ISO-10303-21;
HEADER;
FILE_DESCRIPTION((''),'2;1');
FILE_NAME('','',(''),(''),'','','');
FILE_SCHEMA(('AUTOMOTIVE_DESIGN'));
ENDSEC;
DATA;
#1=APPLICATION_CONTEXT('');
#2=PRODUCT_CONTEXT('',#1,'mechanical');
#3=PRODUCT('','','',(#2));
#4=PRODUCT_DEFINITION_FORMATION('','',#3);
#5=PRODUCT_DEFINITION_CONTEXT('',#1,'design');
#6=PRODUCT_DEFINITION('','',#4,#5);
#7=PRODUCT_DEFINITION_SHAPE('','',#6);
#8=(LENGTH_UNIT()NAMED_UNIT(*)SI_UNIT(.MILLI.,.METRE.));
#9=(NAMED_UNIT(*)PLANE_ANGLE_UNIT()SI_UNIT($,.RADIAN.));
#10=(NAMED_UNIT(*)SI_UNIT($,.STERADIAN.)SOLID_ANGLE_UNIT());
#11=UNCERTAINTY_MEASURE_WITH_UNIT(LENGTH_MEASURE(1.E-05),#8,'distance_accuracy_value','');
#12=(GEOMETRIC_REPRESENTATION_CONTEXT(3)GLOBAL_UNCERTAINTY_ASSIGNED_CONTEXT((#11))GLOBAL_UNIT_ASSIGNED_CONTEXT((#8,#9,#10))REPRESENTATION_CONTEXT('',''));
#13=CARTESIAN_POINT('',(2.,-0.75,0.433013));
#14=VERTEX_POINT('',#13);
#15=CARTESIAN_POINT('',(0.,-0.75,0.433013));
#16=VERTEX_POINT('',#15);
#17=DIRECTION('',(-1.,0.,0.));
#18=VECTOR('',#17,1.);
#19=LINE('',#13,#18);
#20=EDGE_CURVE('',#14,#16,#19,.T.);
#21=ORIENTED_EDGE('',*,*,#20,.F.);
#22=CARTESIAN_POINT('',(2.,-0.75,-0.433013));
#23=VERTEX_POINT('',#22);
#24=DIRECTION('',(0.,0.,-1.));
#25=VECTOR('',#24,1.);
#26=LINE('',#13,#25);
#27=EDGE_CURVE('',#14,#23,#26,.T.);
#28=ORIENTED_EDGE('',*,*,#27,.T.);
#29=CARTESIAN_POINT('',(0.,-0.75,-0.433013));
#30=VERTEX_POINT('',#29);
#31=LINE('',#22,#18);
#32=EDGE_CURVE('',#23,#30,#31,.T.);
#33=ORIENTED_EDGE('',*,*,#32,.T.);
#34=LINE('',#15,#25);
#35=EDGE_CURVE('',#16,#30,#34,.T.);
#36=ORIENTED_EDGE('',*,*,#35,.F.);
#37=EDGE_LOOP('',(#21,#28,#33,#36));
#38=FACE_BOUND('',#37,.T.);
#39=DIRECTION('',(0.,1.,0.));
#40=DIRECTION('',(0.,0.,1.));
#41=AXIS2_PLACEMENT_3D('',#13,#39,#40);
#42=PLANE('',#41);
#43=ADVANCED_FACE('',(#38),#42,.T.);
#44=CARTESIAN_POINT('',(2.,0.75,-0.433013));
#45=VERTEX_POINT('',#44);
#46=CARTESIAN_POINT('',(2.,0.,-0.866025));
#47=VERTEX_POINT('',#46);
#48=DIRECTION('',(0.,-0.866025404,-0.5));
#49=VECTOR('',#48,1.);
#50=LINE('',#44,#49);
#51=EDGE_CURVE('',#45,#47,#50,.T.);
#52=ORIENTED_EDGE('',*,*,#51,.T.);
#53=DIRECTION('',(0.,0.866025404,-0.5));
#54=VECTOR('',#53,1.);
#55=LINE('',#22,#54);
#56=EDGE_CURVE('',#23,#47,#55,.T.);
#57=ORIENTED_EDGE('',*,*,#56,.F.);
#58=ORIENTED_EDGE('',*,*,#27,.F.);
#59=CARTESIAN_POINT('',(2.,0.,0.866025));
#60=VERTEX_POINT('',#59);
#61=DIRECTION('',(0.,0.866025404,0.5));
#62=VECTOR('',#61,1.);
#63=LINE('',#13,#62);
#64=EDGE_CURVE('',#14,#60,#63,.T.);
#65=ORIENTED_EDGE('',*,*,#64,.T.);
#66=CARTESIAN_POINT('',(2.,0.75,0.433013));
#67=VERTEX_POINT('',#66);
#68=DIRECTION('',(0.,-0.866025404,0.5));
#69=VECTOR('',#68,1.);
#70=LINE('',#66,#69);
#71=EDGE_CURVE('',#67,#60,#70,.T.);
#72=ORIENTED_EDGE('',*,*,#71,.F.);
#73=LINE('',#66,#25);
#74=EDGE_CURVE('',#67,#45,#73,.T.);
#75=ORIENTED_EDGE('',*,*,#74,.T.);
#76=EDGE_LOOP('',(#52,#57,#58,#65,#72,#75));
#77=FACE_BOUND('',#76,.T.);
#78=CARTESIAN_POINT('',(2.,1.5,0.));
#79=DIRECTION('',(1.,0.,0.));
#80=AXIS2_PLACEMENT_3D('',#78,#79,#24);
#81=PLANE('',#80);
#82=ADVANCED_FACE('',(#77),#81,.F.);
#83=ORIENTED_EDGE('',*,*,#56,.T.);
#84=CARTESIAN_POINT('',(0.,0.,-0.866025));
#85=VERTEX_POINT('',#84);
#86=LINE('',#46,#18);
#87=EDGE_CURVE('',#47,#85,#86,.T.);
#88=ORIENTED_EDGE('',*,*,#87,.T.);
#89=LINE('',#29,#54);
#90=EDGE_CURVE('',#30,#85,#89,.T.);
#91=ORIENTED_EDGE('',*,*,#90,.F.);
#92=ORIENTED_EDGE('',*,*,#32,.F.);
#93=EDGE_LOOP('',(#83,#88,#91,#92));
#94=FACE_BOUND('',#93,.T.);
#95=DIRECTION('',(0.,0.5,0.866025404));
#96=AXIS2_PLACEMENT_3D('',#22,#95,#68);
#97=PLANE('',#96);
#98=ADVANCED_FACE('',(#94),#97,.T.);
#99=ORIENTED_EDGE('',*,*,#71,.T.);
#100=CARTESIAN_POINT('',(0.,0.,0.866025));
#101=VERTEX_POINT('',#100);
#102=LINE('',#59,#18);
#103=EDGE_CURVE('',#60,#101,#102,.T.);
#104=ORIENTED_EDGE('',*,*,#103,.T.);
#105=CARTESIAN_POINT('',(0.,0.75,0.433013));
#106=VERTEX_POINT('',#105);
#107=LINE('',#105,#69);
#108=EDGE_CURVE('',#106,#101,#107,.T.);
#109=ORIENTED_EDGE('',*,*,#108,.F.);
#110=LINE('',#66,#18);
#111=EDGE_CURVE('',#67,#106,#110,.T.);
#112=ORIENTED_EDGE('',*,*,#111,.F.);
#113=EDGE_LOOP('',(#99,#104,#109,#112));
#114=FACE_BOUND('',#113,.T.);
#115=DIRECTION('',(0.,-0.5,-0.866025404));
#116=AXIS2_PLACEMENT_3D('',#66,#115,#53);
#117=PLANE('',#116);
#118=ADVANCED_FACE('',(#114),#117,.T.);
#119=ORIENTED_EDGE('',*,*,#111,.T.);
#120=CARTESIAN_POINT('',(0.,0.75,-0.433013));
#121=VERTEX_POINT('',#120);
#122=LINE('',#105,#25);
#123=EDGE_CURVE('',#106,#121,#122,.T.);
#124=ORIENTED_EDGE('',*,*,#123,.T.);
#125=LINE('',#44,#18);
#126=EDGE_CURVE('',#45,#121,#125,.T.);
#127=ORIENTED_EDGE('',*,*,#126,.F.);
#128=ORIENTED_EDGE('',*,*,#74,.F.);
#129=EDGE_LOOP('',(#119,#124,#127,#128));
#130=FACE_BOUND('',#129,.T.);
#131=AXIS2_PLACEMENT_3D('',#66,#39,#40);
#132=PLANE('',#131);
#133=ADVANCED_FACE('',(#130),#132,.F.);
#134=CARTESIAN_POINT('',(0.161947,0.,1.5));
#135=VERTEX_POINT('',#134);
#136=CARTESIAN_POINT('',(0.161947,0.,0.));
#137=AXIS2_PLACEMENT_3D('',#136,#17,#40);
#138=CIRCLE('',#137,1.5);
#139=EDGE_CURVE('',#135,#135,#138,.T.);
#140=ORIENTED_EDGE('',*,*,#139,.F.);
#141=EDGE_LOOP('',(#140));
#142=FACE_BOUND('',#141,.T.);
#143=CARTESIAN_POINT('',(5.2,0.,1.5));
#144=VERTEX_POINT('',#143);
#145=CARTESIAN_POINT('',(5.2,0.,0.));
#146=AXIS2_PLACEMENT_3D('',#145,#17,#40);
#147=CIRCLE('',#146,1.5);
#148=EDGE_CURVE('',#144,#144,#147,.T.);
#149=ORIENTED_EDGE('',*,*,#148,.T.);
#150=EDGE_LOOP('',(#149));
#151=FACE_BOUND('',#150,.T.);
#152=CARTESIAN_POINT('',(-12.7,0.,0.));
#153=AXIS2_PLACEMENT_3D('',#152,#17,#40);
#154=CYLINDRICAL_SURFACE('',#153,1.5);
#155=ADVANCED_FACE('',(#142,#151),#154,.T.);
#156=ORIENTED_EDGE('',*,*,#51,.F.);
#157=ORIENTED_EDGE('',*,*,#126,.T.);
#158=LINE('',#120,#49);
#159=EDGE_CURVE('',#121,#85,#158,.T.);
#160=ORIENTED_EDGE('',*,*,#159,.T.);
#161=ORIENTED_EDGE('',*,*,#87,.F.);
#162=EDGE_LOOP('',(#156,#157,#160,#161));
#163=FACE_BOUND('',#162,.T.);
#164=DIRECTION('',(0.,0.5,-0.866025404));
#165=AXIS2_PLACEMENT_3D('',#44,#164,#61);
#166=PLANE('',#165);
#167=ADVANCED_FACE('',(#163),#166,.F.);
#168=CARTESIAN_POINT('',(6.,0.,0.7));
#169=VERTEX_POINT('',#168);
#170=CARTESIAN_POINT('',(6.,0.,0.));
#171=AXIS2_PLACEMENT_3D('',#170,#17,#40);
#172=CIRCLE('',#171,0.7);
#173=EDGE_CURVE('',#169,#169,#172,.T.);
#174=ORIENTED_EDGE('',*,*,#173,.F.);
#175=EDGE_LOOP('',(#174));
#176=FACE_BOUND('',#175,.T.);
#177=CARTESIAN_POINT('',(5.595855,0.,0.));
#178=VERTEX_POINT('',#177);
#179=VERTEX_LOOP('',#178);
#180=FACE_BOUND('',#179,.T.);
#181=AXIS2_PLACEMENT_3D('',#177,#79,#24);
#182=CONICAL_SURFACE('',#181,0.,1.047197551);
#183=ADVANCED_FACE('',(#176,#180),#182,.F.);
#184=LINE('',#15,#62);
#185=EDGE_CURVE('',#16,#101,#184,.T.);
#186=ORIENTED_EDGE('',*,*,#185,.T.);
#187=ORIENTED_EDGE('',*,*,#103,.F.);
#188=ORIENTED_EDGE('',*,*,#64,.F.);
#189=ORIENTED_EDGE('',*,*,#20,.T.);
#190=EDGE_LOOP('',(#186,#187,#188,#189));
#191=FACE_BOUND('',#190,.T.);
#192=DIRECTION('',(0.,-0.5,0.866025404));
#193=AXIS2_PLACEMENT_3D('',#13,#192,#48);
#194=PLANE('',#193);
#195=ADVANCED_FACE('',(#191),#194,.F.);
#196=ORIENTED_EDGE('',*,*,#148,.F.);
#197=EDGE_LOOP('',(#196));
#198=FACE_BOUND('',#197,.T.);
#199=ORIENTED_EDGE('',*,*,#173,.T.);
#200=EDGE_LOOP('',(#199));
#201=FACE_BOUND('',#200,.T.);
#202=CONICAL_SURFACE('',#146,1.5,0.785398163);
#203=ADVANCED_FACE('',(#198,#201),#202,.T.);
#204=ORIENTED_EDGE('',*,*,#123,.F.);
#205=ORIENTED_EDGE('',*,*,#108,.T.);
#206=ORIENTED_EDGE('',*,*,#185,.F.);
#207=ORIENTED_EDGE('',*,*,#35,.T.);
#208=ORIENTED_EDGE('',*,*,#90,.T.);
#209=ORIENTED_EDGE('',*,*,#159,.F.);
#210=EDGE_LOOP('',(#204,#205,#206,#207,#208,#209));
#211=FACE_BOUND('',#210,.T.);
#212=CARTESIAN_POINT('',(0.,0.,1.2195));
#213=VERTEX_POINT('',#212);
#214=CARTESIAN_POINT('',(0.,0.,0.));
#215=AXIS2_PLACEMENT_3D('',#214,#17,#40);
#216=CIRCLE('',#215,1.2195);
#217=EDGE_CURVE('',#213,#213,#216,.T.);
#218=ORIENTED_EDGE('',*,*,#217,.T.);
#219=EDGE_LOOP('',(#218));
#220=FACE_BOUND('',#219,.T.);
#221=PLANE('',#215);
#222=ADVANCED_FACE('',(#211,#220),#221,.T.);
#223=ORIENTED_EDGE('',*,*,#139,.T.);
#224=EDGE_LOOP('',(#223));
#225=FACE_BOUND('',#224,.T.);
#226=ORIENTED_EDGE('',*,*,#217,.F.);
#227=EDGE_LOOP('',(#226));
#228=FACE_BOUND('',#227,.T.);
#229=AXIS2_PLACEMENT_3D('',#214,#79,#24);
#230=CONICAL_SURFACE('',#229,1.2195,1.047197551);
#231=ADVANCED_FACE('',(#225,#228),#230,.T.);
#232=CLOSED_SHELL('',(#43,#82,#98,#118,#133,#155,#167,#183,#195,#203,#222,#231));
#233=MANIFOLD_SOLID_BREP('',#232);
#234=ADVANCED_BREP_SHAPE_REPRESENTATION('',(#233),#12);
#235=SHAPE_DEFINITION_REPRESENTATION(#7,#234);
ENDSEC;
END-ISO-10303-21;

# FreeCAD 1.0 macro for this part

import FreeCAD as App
import Part
import Sketcher

V = App.Vector
Q = App.Units.Quantity


def add_polygon(sketch, points):
    """Adds a closed chain of lines whose ends are joined by coincident constraints."""
    first, n = sketch.GeometryCount, len(points)
    for a, b in zip(points, points[1:] + points[:1]):
        sketch.addGeometry(Part.LineSegment(App.Vector(*a, 0), App.Vector(*b, 0)), False)
    for i in range(n):
        sketch.addConstraint(Sketcher.Constraint("Coincident", first + i, 2, first + (i + 1) % n, 1))

doc = App.newDocument("Part")
body = doc.addObject("PartDesign::Body", "Body")

sketch1 = body.newObject("Sketcher::SketchObject", "Sketch")
sketch1.AttachmentSupport = (doc.getObject("XY_Plane"), [""])
sketch1.MapMode = "FlatFace"
add_polygon(sketch1, [(0, 1.2195), (0, 0), (5.595855, 0), (6, 0.7), (5.2, 1.5), (0.161947, 1.5)])
sketch1.addConstraint([
    Sketcher.Constraint("Vertical", 0),
    Sketcher.Constraint("Horizontal", 1),
    Sketcher.Constraint("Horizontal", 4),
    Sketcher.Constraint("Coincident", 0, 2, -1, 1),
    Sketcher.Constraint("Parallel", 2, 5),
    Sketcher.Constraint("Angle", 2, Q("60 deg")),
    Sketcher.Constraint("Angle", 3, Q("135 deg")),
    Sketcher.Constraint("DistanceX", -1, 1, 2, 2, 6.0),
    Sketcher.Constraint("DistanceY", -1, 1, 2, 2, 0.7),
    Sketcher.Constraint("DistanceX", -1, 1, 3, 2, 5.2),
    Sketcher.Constraint("DistanceY", 0, 2, 0, 1, 1.2195),
])
revolution = body.newObject("PartDesign::Revolution", "Revolution")
revolution.Profile = sketch1
revolution.ReferenceAxis = (sketch1, ["H_Axis"])
revolution.Angle = 360

sketch2 = body.newObject("Sketcher::SketchObject", "Sketch001")
sketch2.AttachmentSupport = (doc.getObject("YZ_Plane"), [""])
sketch2.MapMode = "FlatFace"
add_polygon(sketch2, [(0.75, 0.433013), (0.75, -0.433013), (0, -0.866025), (-0.75, -0.433013), (-0.75, 0.433013), (0, 0.866025)])
sketch2.addConstraint([
    Sketcher.Constraint("Vertical", 0),
    Sketcher.Constraint("Vertical", 3),
    Sketcher.Constraint("Symmetric", 0, 2, 3, 2, -1, 1),
    Sketcher.Constraint("Symmetric", 1, 2, 4, 2, -1, 1),
    Sketcher.Constraint("PointOnObject", 1, 2, -2),
    Sketcher.Constraint("Parallel", 2, 5),
    Sketcher.Constraint("Horizontal", 0, 2, 2, 2),
    Sketcher.Constraint("Angle", 1, Q("-150 deg")),
    Sketcher.Constraint("DistanceX", 2, 2, 0, 2, 1.5),
    Sketcher.Constraint("DistanceY", 0, 2, 0, 1, 0.866025),
])
pocket1 = body.newObject("PartDesign::Pocket", "Pocket")
pocket1.Profile = sketch2
pocket1.Length = 2
pocket1.Reversed = True

doc.recompute()
